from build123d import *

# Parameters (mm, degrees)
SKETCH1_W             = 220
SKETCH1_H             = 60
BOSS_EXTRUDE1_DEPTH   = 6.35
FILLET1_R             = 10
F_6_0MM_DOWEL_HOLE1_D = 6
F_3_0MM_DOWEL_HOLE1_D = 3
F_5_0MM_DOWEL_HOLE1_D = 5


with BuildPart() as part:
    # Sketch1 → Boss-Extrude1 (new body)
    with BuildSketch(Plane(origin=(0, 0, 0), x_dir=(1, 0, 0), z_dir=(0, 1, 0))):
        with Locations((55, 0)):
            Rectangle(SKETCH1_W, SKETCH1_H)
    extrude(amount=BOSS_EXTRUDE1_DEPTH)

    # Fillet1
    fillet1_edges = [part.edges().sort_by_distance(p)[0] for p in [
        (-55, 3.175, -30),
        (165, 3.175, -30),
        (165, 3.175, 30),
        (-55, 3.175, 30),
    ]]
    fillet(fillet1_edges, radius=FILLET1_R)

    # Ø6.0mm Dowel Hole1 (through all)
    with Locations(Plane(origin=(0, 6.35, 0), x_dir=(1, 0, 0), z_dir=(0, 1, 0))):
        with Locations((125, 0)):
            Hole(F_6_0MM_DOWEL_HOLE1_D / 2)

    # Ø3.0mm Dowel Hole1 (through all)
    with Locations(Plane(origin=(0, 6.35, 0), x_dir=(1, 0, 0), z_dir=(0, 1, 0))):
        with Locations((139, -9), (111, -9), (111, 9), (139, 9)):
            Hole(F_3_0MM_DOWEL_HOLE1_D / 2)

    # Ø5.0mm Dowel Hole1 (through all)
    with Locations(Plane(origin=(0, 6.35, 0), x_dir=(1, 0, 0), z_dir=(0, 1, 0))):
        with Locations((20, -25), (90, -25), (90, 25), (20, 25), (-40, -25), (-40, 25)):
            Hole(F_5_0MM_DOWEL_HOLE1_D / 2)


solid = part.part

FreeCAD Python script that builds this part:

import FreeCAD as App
import Part
import Sketcher
Q = App.Units.Quantity


def edges_at(feature, points):
    """Names of the edges that pass closest to the given points."""
    edges = feature.Shape.Edges
    near = lambda p: min(range(len(edges)), key=lambda i: edges[i].distToShape(Part.Vertex(*p))[0])
    return sorted({f"Edge{near(p) + 1}" for p in points})


def add_polygon(sketch, points):
    """Adds a closed chain of lines whose ends are joined by coincident constraints."""
    first, n = sketch.GeometryCount, len(points)
    for a, b in zip(points, points[1:] + points[:1]):
        sketch.addGeometry(Part.LineSegment(App.Vector(*a, 0), App.Vector(*b, 0)), False)
    for i in range(n):
        sketch.addConstraint(Sketcher.Constraint("Coincident", first + i, 2, first + (i + 1) % n, 1))

doc = App.newDocument("Part")
body = doc.addObject("PartDesign::Body", "Body")

# Sketch on XZ plane
sketch1 = doc.addObject("Sketcher::SketchObject", "Sketch")
body.addObject(sketch1)
sketch1.AttachmentSupport = (doc.XZ_Plane, [""])
sketch1.MapMode = "FlatFace"
add_polygon(sketch1, [(-55, -30), (-55, 30), (165, 30), (165, -30)])  # lines 0-3
sketch1.addConstraint([
    Sketcher.Constraint("Vertical", 0),
    Sketcher.Constraint("Horizontal", 1),
    Sketcher.Constraint("Vertical", 2),
    Sketcher.Constraint("Horizontal", 3),
    Sketcher.Constraint("DistanceX", 1, 1, 1, 2, Q("220 mm")),
    Sketcher.Constraint("DistanceY", 0, 1, 0, 2, Q("60 mm")),
    Sketcher.Constraint("DistanceX", 0, 2, -1, 1, Q("55 mm")),
    Sketcher.Constraint("DistanceY", -1, 1, 0, 2, Q("30 mm")),
])
pad1 = doc.addObject("PartDesign::Pad", "Pad")
body.addObject(pad1)
pad1.Profile = sketch1
pad1.Length = 6.35
pad1.Reversed = True
doc.recompute()

fillet = doc.addObject("PartDesign::Fillet", "Fillet")
body.addObject(fillet)
fillet.Base = (pad1, edges_at(pad1, [
    (-55, 3.175, -30),
    (165, 3.175, -30),
    (165, 3.175, 30),
    (-55, 3.175, 30),
]))
fillet.Radius = 10

# Sketch on XZ plane
sketch2 = doc.addObject("Sketcher::SketchObject", "Sketch001")
body.addObject(sketch2)
sketch2.AttachmentSupport = (doc.XZ_Plane, [""])
sketch2.MapMode = "FlatFace"
sketch2.AttachmentOffset = App.Placement(App.Vector(0, 0, -6.35), App.Rotation())
sketch2.addGeometry(Part.Circle(App.Vector(125, 0, 0), App.Vector(0, 0, 1), 3), False)
sketch2.addConstraint([
    Sketcher.Constraint("PointOnObject", 0, 3, -1),
    Sketcher.Constraint("Diameter", 0, Q("6 mm")),
    Sketcher.Constraint("DistanceX", -1, 1, 0, 3, Q("125 mm")),
])
doc.recompute()
hole = doc.addObject("PartDesign::Hole", "Hole")
body.addObject(hole)
hole.Profile = sketch2
hole.ThreadType = "None"
hole.Diameter = 6
hole.DepthType = "ThroughAll"
hole.Reversed = True

# Sketch on XZ plane
sketch3 = doc.addObject("Sketcher::SketchObject", "Sketch002")
body.addObject(sketch3)
sketch3.AttachmentSupport = (doc.XZ_Plane, [""])
sketch3.MapMode = "FlatFace"
sketch3.AttachmentOffset = App.Placement(App.Vector(0, 0, -6.35), App.Rotation())
sketch3.addGeometry([
    Part.Circle(App.Vector(139, 9, 0), App.Vector(0, 0, 1), 1.5),
    Part.Circle(App.Vector(111, 9, 0), App.Vector(0, 0, 1), 1.5),
    Part.Circle(App.Vector(111, -9, 0), App.Vector(0, 0, 1), 1.5),
    Part.Circle(App.Vector(139, -9, 0), App.Vector(0, 0, 1), 1.5),
], False)
sketch3.addConstraint([
    Sketcher.Constraint("Equal", 0, 1),
    Sketcher.Constraint("Equal", 1, 2),
    Sketcher.Constraint("Equal", 2, 3),
    Sketcher.Constraint("Symmetric", 1, 3, 2, 3, -1),
    Sketcher.Constraint("Symmetric", 0, 3, 3, 3, -1),
    Sketcher.Constraint("Horizontal", 0, 3, 1, 3),
    Sketcher.Constraint("Diameter", 0, Q("3 mm")),
    Sketcher.Constraint("DistanceX", -1, 1, 0, 3, Q("139 mm")),
    Sketcher.Constraint("DistanceY", -1, 1, 0, 3, Q("9 mm")),
    Sketcher.Constraint("DistanceX", -1, 1, 1, 3, Q("111 mm")),
])
doc.recompute()
hole2 = doc.addObject("PartDesign::Hole", "Hole001")
body.addObject(hole2)
hole2.Profile = sketch3
hole2.ThreadType = "None"
hole2.Diameter = 3
hole2.DepthType = "ThroughAll"
hole2.Reversed = True

# Sketch on XZ plane
sketch4 = doc.addObject("Sketcher::SketchObject", "Sketch003")
body.addObject(sketch4)
sketch4.AttachmentSupport = (doc.XZ_Plane, [""])
sketch4.MapMode = "FlatFace"
sketch4.AttachmentOffset = App.Placement(App.Vector(0, 0, -6.35), App.Rotation())
sketch4.addGeometry([
    Part.Circle(App.Vector(20, 25, 0), App.Vector(0, 0, 1), 2.5),  # 0
    Part.Circle(App.Vector(90, 25, 0), App.Vector(0, 0, 1), 2.5),  # 1
    Part.Circle(App.Vector(90, -25, 0), App.Vector(0, 0, 1), 2.5),  # 2
    Part.Circle(App.Vector(20, -25, 0), App.Vector(0, 0, 1), 2.5),  # 3
    Part.Circle(App.Vector(-40, 25, 0), App.Vector(0, 0, 1), 2.5),  # 4
    Part.Circle(App.Vector(-40, -25, 0), App.Vector(0, 0, 1), 2.5),  # 5
], False)
sketch4.addConstraint([
    Sketcher.Constraint("Equal", 0, 1),
    Sketcher.Constraint("Equal", 1, 2),
    Sketcher.Constraint("Equal", 2, 3),
    Sketcher.Constraint("Equal", 3, 4),
    Sketcher.Constraint("Equal", 4, 5),
    Sketcher.Constraint("Symmetric", 1, 3, 2, 3, -1),
    Sketcher.Constraint("Symmetric", 0, 3, 3, 3, -1),
    Sketcher.Constraint("Symmetric", 4, 3, 5, 3, -1),
    Sketcher.Constraint("Horizontal", 0, 3, 1, 3),
    Sketcher.Constraint("Horizontal", 1, 3, 4, 3),
    Sketcher.Constraint("Diameter", 0, Q("5 mm")),
    Sketcher.Constraint("DistanceX", -1, 1, 0, 3, Q("20 mm")),
    Sketcher.Constraint("DistanceY", -1, 1, 0, 3, Q("25 mm")),
    Sketcher.Constraint("DistanceX", -1, 1, 1, 3, Q("90 mm")),
    Sketcher.Constraint("DistanceX", 4, 3, -1, 1, Q("40 mm")),
])
doc.recompute()
hole3 = doc.addObject("PartDesign::Hole", "Hole002")
body.addObject(hole3)
hole3.Profile = sketch4
hole3.ThreadType = "None"
hole3.Diameter = 5
hole3.DepthType = "ThroughAll"
hole3.Reversed = True

doc.recompute()
